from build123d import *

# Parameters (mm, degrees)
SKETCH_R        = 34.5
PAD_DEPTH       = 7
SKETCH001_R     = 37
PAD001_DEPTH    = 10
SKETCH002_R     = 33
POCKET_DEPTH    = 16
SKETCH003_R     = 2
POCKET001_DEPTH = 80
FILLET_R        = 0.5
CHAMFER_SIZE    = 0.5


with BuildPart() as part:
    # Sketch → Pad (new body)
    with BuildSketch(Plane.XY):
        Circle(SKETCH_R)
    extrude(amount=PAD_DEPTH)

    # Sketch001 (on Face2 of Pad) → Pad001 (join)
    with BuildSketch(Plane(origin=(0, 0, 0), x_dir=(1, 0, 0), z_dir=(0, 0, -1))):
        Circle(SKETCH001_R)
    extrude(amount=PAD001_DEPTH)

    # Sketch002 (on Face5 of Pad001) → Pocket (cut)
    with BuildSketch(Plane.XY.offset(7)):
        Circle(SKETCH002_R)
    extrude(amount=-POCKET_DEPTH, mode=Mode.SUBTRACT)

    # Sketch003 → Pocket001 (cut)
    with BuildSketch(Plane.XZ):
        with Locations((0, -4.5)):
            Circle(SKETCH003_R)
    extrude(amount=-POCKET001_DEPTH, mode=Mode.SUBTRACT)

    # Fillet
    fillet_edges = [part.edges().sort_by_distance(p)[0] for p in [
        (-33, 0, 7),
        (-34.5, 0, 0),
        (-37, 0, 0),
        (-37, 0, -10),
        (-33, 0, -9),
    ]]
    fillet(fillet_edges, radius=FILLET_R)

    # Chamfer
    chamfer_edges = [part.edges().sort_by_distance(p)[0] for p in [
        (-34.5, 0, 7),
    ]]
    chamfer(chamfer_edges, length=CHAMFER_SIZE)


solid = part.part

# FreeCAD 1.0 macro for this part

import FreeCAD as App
import Part
import Sketcher

V = App.Vector
Q = App.Units.Quantity


def edges_at(feature, points):
    """Names of the edges that pass closest to the given points."""
    edges = feature.Shape.Edges
    near = lambda p: min(range(len(edges)), key=lambda i: edges[i].distToShape(Part.Vertex(*p))[0])
    return sorted({f"Edge{near(p) + 1}" for p in points})

doc = App.newDocument("Part")
body = doc.addObject("PartDesign::Body", "Body")

sketch1 = doc.addObject("Sketcher::SketchObject", "Sketch")
body.addObject(sketch1)
sketch1.AttachmentSupport = (doc.XY_Plane, [""])
sketch1.MapMode = "FlatFace"
sketch1.addGeometry(Part.Circle(V(0, 0, 0), V(0, 0, 1), 34.5), False)
sketch1.addConstraint([
    Sketcher.Constraint("Coincident", 0, 3, -1, 1),
    Sketcher.Constraint("Diameter", 0, Q("69 mm")),
])
pad1 = doc.addObject("PartDesign::Pad", "Pad")
body.addObject(pad1)
pad1.Profile = sketch1
pad1.Length = 7

sketch2 = doc.addObject("Sketcher::SketchObject", "Sketch001")
body.addObject(sketch2)
sketch2.AttachmentSupport = (doc.XY_Plane, [""])
sketch2.MapMode = "FlatFace"
sketch2.addGeometry(Part.Circle(V(0, 0, 0), V(0, 0, 1), 37), False)
sketch2.addConstraint([
    Sketcher.Constraint("Coincident", 0, 3, -1, 1),
    Sketcher.Constraint("Diameter", 0, Q("74 mm")),
])
pad2 = doc.addObject("PartDesign::Pad", "Pad001")
body.addObject(pad2)
pad2.Profile = sketch2
pad2.Length = 10
pad2.Reversed = True

sketch3 = doc.addObject("Sketcher::SketchObject", "Sketch002")
body.addObject(sketch3)
sketch3.AttachmentSupport = (doc.XY_Plane, [""])
sketch3.MapMode = "FlatFace"
sketch3.AttachmentOffset = App.Placement(V(0, 0, 7), App.Rotation())
sketch3.addGeometry(Part.Circle(V(0, 0, 0), V(0, 0, 1), 33), False)
sketch3.addConstraint([
    Sketcher.Constraint("Coincident", 0, 3, -1, 1),
    Sketcher.Constraint("Diameter", 0, Q("66 mm")),
])
pocket1 = doc.addObject("PartDesign::Pocket", "Pocket")
body.addObject(pocket1)
pocket1.Profile = sketch3
pocket1.Length = 16

sketch4 = doc.addObject("Sketcher::SketchObject", "Sketch003")
body.addObject(sketch4)
sketch4.AttachmentSupport = (doc.XZ_Plane, [""])
sketch4.MapMode = "FlatFace"
sketch4.addGeometry(Part.Circle(V(0, -4.5, 0), V(0, 0, 1), 2), False)
sketch4.addConstraint([
    Sketcher.Constraint("PointOnObject", 0, 3, -2),
    Sketcher.Constraint("Diameter", 0, Q("4 mm")),
    Sketcher.Constraint("DistanceY", 0, 3, -1, 1, Q("4.5 mm")),
])
pocket2 = doc.addObject("PartDesign::Pocket", "Pocket001")
body.addObject(pocket2)
pocket2.Profile = sketch4
pocket2.Length = 80
doc.recompute()

fillet = doc.addObject("PartDesign::Fillet", "Fillet")
body.addObject(fillet)
fillet.Base = (pocket2, edges_at(pocket2, [
    (-33, 0, 7),
    (-34.5, 0, 0),
    (-37, 0, 0),
    (-37, 0, -10),
    (-33, 0, -9),
]))
fillet.Radius = 0.5
doc.recompute()

chamfer = doc.addObject("PartDesign::Chamfer", "Chamfer")
body.addObject(chamfer)
chamfer.Base = (fillet, edges_at(fillet, [(-34.5, 0, 7)]))
chamfer.Size = 0.5

doc.recompute()
